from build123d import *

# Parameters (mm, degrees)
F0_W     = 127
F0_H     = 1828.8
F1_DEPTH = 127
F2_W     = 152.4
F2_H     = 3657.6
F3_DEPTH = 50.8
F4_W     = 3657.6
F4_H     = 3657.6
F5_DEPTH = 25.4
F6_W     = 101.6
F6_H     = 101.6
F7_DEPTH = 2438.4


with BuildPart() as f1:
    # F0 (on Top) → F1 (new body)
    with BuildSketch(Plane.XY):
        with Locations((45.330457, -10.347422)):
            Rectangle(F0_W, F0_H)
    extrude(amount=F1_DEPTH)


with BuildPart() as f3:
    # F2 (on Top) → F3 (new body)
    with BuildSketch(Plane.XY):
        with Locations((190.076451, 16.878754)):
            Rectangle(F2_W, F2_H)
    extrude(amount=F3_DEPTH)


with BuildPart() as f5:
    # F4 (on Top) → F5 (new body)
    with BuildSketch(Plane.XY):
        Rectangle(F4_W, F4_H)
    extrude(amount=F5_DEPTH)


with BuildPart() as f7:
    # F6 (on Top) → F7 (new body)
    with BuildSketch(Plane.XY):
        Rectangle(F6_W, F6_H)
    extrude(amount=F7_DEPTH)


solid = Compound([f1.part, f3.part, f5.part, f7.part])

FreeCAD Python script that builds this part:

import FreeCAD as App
import Part
import Sketcher

V = App.Vector
Q = App.Units.Quantity

doc = App.newDocument("Part")
body = doc.addObject("PartDesign::Body", "Body")

# Sketch on XY plane
sketch1 = doc.addObject("Sketcher::SketchObject", "Sketch")
body.addObject(sketch1)
sketch1.AttachmentSupport = (doc.XY_Plane, [""])
sketch1.MapMode = "FlatFace"
sketch1.addGeometry(Part.LineSegment(V(-18, 904, 0), V(-18, -925, 0)), False)
sketch1.addGeometry(Part.LineSegment(V(-18, -925, 0), V(109, -925, 0)), False)
sketch1.addGeometry(Part.LineSegment(V(109, -925, 0), V(109, 904, 0)), False)
sketch1.addGeometry(Part.LineSegment(V(109, 904, 0), V(-18, 904, 0)), False)
sketch1.addConstraint(Sketcher.Constraint("Coincident", 0, 2, 1, 1))
sketch1.addConstraint(Sketcher.Constraint("Coincident", 1, 2, 2, 1))
sketch1.addConstraint(Sketcher.Constraint("Coincident", 2, 2, 3, 1))
sketch1.addConstraint(Sketcher.Constraint("Coincident", 3, 2, 0, 1))
sketch1.addConstraint(Sketcher.Constraint("Vertical", 0))
sketch1.addConstraint(Sketcher.Constraint("Horizontal", 1))
sketch1.addConstraint(Sketcher.Constraint("Vertical", 2))
sketch1.addConstraint(Sketcher.Constraint("Horizontal", 3))
sketch1.addConstraint(Sketcher.Constraint("DistanceX", 1, 1, 1, 2, Q("5 in")))
sketch1.addConstraint(Sketcher.Constraint("DistanceY", 0, 2, 0, 1, Q("72 in")))
sketch1.addConstraint(Sketcher.Constraint("DistanceY", 0, 2, -1, 1, 924.747422))
sketch1.addConstraint(Sketcher.Constraint("DistanceX", 0, 2, -1, 1, 18.169543))
pad1 = doc.addObject("PartDesign::Pad", "Pad")
body.addObject(pad1)
pad1.Profile = sketch1
pad1.Length = Q("5 in")
body2 = doc.addObject("PartDesign::Body", "Body001")

# Sketch on XY plane
sketch2 = doc.addObject("Sketcher::SketchObject", "Sketch001")
body2.addObject(sketch2)
sketch2.AttachmentSupport = (doc.getObject("XY_Plane001"), [""])
sketch2.MapMode = "FlatFace"
sketch2.addGeometry(Part.LineSegment(V(114, 1846, 0), V(114, -1812, 0)), False)
sketch2.addGeometry(Part.LineSegment(V(114, -1812, 0), V(266, -1812, 0)), False)
sketch2.addGeometry(Part.LineSegment(V(266, -1812, 0), V(266, 1846, 0)), False)
sketch2.addGeometry(Part.LineSegment(V(266, 1846, 0), V(114, 1846, 0)), False)
sketch2.addConstraint(Sketcher.Constraint("Coincident", 0, 2, 1, 1))
sketch2.addConstraint(Sketcher.Constraint("Coincident", 1, 2, 2, 1))
sketch2.addConstraint(Sketcher.Constraint("Coincident", 2, 2, 3, 1))
sketch2.addConstraint(Sketcher.Constraint("Coincident", 3, 2, 0, 1))
sketch2.addConstraint(Sketcher.Constraint("Vertical", 0))
sketch2.addConstraint(Sketcher.Constraint("Horizontal", 1))
sketch2.addConstraint(Sketcher.Constraint("Vertical", 2))
sketch2.addConstraint(Sketcher.Constraint("Horizontal", 3))
sketch2.addConstraint(Sketcher.Constraint("DistanceX", 1, 1, 1, 2, Q("6 in")))
sketch2.addConstraint(Sketcher.Constraint("DistanceY", 0, 2, 0, 1, Q("144 in")))
sketch2.addConstraint(Sketcher.Constraint("DistanceX", -1, 1, 0, 2, 113.876451))
sketch2.addConstraint(Sketcher.Constraint("DistanceY", 0, 2, -1, 1, 1811.921246))
pad2 = doc.addObject("PartDesign::Pad", "Pad001")
body2.addObject(pad2)
pad2.Profile = sketch2
pad2.Length = Q("2 in")
body3 = doc.addObject("PartDesign::Body", "Body002")

# Sketch on XY plane
sketch3 = doc.addObject("Sketcher::SketchObject", "Sketch002")
body3.addObject(sketch3)
sketch3.AttachmentSupport = (doc.getObject("XY_Plane002"), [""])
sketch3.MapMode = "FlatFace"
sketch3.addGeometry(Part.LineSegment(V(-1829, 1829, 0), V(-1829, -1829, 0)), False)
sketch3.addGeometry(Part.LineSegment(V(-1829, -1829, 0), V(1829, -1829, 0)), False)
sketch3.addGeometry(Part.LineSegment(V(1829, -1829, 0), V(1829, 1829, 0)), False)
sketch3.addGeometry(Part.LineSegment(V(1829, 1829, 0), V(-1829, 1829, 0)), False)
sketch3.addConstraint(Sketcher.Constraint("Coincident", 0, 2, 1, 1))
sketch3.addConstraint(Sketcher.Constraint("Coincident", 1, 2, 2, 1))
sketch3.addConstraint(Sketcher.Constraint("Coincident", 2, 2, 3, 1))
sketch3.addConstraint(Sketcher.Constraint("Coincident", 3, 2, 0, 1))
sketch3.addConstraint(Sketcher.Constraint("Vertical", 0))
sketch3.addConstraint(Sketcher.Constraint("Horizontal", 1))
sketch3.addConstraint(Sketcher.Constraint("Vertical", 2))
sketch3.addConstraint(Sketcher.Constraint("Horizontal", 3))
sketch3.addConstraint(Sketcher.Constraint("Symmetric", 0, 2, 2, 2, -1, 1))
sketch3.addConstraint(Sketcher.Constraint("Equal", 3, 0))
sketch3.addConstraint(Sketcher.Constraint("DistanceX", 1, 1, 1, 2, Q("144 in")))
pad3 = doc.addObject("PartDesign::Pad", "Pad002")
body3.addObject(pad3)
pad3.Profile = sketch3
pad3.Length = Q("1 in")
body4 = doc.addObject("PartDesign::Body", "Body003")

# Sketch on XY plane
sketch4 = doc.addObject("Sketcher::SketchObject", "Sketch003")
body4.addObject(sketch4)
sketch4.AttachmentSupport = (doc.getObject("XY_Plane003"), [""])
sketch4.MapMode = "FlatFace"
sketch4.addGeometry(Part.LineSegment(V(-51, 51, 0), V(-51, -51, 0)), False)
sketch4.addGeometry(Part.LineSegment(V(-51, -51, 0), V(51, -51, 0)), False)
sketch4.addGeometry(Part.LineSegment(V(51, -51, 0), V(51, 51, 0)), False)
sketch4.addGeometry(Part.LineSegment(V(51, 51, 0), V(-51, 51, 0)), False)
sketch4.addConstraint(Sketcher.Constraint("Coincident", 0, 2, 1, 1))
sketch4.addConstraint(Sketcher.Constraint("Coincident", 1, 2, 2, 1))
sketch4.addConstraint(Sketcher.Constraint("Coincident", 2, 2, 3, 1))
sketch4.addConstraint(Sketcher.Constraint("Coincident", 3, 2, 0, 1))
sketch4.addConstraint(Sketcher.Constraint("Vertical", 0))
sketch4.addConstraint(Sketcher.Constraint("Horizontal", 1))
sketch4.addConstraint(Sketcher.Constraint("Vertical", 2))
sketch4.addConstraint(Sketcher.Constraint("Horizontal", 3))
sketch4.addConstraint(Sketcher.Constraint("Symmetric", 0, 2, 2, 2, -1, 1))
sketch4.addConstraint(Sketcher.Constraint("Equal", 3, 0))
sketch4.addConstraint(Sketcher.Constraint("DistanceX", 1, 1, 1, 2, Q("4 in")))
pad4 = doc.addObject("PartDesign::Pad", "Pad003")
body4.addObject(pad4)
pad4.Profile = sketch4
pad4.Length = Q("96 in")

doc.recompute()
